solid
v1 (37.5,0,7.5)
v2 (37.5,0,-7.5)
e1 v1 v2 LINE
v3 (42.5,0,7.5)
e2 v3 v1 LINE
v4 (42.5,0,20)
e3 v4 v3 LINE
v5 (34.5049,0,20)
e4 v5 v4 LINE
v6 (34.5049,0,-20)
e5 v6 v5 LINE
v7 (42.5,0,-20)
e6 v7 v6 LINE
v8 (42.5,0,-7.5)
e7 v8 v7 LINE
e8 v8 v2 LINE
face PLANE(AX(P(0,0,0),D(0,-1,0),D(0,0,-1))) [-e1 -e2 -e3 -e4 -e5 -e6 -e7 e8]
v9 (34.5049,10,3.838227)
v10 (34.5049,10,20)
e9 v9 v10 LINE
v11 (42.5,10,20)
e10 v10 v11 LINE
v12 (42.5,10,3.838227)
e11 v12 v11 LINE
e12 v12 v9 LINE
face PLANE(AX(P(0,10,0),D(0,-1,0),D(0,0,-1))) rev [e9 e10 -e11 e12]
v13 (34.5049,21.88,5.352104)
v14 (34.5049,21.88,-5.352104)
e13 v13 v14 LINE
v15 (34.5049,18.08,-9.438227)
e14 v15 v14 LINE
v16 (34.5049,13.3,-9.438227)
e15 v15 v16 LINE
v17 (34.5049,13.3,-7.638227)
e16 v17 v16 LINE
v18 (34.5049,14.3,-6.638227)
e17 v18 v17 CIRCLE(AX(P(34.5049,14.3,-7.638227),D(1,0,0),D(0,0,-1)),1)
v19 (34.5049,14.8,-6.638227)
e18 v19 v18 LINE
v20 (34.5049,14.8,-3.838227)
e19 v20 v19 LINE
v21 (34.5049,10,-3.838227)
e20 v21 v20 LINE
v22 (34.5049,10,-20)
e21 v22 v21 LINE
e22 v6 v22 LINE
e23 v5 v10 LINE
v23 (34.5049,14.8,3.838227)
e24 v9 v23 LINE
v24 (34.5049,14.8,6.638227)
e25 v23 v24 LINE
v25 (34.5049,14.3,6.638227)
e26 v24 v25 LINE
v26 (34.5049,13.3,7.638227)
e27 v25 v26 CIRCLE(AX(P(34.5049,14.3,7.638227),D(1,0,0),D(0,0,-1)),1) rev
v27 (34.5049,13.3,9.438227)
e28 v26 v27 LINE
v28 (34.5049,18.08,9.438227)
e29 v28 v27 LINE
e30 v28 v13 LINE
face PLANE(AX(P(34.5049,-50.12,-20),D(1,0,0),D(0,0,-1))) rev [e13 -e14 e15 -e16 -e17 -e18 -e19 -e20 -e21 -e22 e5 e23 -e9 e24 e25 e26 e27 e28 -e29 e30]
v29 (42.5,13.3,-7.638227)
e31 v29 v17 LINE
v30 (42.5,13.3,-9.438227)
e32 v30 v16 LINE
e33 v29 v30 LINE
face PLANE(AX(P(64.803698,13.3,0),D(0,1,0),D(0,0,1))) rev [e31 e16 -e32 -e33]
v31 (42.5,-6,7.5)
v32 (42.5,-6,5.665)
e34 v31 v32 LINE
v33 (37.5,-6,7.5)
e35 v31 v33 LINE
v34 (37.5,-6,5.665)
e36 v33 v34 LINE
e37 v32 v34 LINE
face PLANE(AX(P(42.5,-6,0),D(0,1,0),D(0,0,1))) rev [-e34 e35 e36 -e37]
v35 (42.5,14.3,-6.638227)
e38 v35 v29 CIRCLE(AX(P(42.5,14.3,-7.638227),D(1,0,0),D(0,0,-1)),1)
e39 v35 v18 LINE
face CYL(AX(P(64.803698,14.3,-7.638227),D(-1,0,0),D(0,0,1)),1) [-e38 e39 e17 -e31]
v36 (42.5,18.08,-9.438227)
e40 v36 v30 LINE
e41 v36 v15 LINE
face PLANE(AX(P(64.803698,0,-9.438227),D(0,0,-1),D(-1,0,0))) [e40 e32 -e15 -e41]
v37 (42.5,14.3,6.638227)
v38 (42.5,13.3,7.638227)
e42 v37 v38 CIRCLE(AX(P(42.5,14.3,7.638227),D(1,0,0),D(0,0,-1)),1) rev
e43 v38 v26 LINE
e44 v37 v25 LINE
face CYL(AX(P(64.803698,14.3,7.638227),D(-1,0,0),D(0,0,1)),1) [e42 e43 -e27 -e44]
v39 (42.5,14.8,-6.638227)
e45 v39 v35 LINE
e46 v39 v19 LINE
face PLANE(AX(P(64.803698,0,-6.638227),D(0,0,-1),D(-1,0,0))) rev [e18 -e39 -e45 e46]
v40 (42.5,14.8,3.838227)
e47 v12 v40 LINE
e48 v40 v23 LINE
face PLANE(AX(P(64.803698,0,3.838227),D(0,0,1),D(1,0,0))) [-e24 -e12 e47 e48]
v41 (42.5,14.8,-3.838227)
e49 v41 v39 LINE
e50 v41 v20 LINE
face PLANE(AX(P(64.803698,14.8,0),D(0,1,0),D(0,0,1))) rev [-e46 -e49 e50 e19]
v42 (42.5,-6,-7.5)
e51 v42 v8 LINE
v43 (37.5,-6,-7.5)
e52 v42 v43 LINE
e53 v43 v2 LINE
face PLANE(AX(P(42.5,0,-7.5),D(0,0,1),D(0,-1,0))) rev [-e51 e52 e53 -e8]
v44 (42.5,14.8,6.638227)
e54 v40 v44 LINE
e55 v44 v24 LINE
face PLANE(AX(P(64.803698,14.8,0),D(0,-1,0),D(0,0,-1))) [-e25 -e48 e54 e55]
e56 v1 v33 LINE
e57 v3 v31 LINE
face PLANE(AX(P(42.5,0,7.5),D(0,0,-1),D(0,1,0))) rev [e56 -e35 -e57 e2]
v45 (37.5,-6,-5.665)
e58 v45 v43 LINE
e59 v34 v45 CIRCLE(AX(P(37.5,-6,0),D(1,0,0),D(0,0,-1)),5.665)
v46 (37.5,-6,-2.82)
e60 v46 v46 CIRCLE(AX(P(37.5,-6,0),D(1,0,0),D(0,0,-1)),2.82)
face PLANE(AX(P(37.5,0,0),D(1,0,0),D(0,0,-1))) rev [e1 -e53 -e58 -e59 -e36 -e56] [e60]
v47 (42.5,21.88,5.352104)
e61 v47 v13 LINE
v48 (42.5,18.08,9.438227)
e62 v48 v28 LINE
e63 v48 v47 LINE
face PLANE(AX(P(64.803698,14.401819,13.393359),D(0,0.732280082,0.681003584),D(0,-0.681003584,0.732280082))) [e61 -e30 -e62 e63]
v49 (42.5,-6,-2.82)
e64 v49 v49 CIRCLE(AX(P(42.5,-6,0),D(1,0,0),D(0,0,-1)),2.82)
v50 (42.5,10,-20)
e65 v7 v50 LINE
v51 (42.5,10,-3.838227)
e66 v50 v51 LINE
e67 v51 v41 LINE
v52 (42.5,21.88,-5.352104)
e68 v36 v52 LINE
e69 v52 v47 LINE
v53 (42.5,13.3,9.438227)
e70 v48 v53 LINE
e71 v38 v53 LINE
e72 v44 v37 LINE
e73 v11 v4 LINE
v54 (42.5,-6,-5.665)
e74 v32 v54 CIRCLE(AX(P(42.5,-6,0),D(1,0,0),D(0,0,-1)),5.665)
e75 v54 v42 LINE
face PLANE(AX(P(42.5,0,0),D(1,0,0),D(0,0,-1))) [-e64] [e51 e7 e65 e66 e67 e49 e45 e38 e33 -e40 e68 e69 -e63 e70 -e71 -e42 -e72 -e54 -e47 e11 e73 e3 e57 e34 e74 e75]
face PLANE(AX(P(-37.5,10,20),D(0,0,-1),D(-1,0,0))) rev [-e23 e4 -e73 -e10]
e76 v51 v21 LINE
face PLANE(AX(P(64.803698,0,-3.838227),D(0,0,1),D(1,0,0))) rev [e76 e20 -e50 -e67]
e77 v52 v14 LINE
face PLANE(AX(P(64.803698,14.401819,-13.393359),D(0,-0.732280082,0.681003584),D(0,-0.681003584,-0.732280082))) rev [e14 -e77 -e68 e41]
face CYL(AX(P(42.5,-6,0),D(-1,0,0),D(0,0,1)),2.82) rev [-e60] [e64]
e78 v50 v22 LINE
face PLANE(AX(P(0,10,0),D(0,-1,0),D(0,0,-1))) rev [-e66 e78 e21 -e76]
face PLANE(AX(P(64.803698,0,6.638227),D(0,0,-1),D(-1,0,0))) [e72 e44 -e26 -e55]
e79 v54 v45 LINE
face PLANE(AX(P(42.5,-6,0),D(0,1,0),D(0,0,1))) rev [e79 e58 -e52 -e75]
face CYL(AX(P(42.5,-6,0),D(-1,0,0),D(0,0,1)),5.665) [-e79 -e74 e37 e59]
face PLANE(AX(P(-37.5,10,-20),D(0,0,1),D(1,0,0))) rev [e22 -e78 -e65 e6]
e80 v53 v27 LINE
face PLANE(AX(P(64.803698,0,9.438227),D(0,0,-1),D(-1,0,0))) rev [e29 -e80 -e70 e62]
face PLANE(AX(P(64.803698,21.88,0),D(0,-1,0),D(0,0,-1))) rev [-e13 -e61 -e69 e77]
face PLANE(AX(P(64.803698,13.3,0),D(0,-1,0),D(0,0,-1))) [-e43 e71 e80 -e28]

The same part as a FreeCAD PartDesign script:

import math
import FreeCAD as App
import Part
import Sketcher
from FreeCAD import Vector

doc = App.newDocument("Part")
params = doc.addObject("Spreadsheet::Sheet", "Params")
for row, (alias, value) in enumerate([
    ("sketch1_width", "75 mm"),
    ("sketch1_height", "40 mm"),
    ("pad1_length", "10 mm"),
    ("sketch2_diameter", "5.64 mm"),
    ("sketch2_width", "6 mm"),
    ("sketch2_width2", "10 mm"),
    ("sketch2_height", "40 mm"),
    ("sketch2_height2", "12.5 mm"),
    ("pad2_length", "5 mm"),
    ("sketch3_radius", "1 mm"),
    ("sketch3_width", "4.8 mm"),
    ("sketch3_width2", "0.5 mm"),
    ("sketch3_height", "2.8 mm"),
    ("sketch3_height2", "1.8 mm"),
    ("pad3_length", "85 mm"),
    ("sketch4_height", "40 mm"),
    ("pocket1_length", "72 mm"),
], start=1):
    params.set(f"A{row}", alias)
    params.set(f"B{row}", "=" + value)
    params.setAlias(f"B{row}", alias)

body = doc.addObject("PartDesign::Body", "Body")

sketch1 = doc.addObject("Sketcher::SketchObject", "Sketch")
body.addObject(sketch1)
sketch1.AttachmentSupport = (doc.XZ_Plane, [""])
sketch1.MapMode = "FlatFace"
sketch1.addGeometry([
    Part.LineSegment(Vector(-38, -20, 0), Vector(-38, 20, 0)),
    Part.LineSegment(Vector(-38, 20, 0), Vector(38, 20, 0)),
    Part.LineSegment(Vector(38, 20, 0), Vector(38, -20, 0)),
    Part.LineSegment(Vector(38, -20, 0), Vector(-38, -20, 0)),
], False)
sketch1.addConstraint([
    Sketcher.Constraint("Coincident", 0, 2, 1, 1),
    Sketcher.Constraint("Coincident", 1, 2, 2, 1),
    Sketcher.Constraint("Coincident", 2, 2, 3, 1),
    Sketcher.Constraint("Coincident", 3, 2, 0, 1),
    Sketcher.Constraint("Vertical", 0),
    Sketcher.Constraint("Horizontal", 1),
    Sketcher.Constraint("Vertical", 2),
    Sketcher.Constraint("Horizontal", 3),
    Sketcher.Constraint("Symmetric", 0, 2, 2, 2, -1, 1),
    Sketcher.Constraint("DistanceX", 1, 1, 1, 2, 75.0),
    Sketcher.Constraint("DistanceY", 0, 1, 0, 2, 40.0),
])
sketch1.setExpression("Constraints[9]", "Params.sketch1_width")
sketch1.setExpression("Constraints[10]", "Params.sketch1_height")
pad1 = doc.addObject("PartDesign::Pad", "Pad")
body.addObject(pad1)
pad1.Profile = sketch1
pad1.setExpression("Length", "Params.pad1_length")
pad1.Reversed = True

sketch2 = doc.addObject("Sketcher::SketchObject", "Sketch001")
body.addObject(sketch2)
sketch2.AttachmentSupport = (doc.YZ_Plane, [""])
sketch2.MapMode = "FlatFace"
sketch2.AttachmentOffset = App.Placement(Vector(0, 0, 37.5), App.Rotation())
sketch2.addGeometry([
    Part.LineSegment(Vector(-6, -7.5, 0), Vector(0, -7.5, 0)),
    Part.LineSegment(Vector(0, -7.5, 0), Vector(0, -20, 0)),
    Part.LineSegment(Vector(0, -20, 0), Vector(10, -20, 0)),
    Part.LineSegment(Vector(10, -20, 0), Vector(10, 20, 0)),
    Part.LineSegment(Vector(10, 20, 0), Vector(0, 20, 0)),
    Part.LineSegment(Vector(0, 20, 0), Vector(0, 7.5, 0)),
    Part.LineSegment(Vector(0, 7.5, 0), Vector(-6, 7.5, 0)),
    Part.LineSegment(Vector(-6, 7.5, 0), Vector(-6, 5.7, 0)),
    Part.ArcOfCircle(Part.Circle(Vector(-6, 0, 0), Vector(0, 0, 1), 5.7), math.radians(90), math.radians(270)),
    Part.LineSegment(Vector(-6, -5.7, 0), Vector(-6, -7.5, 0)),
    Part.Circle(Vector(-6, 0, 0), Vector(0, 0, 1), 2.8),
], False)
sketch2.addConstraint([
    Sketcher.Constraint("Coincident", 0, 2, 1, 1),
    Sketcher.Constraint("Coincident", 1, 2, 2, 1),
    Sketcher.Constraint("Coincident", 2, 2, 3, 1),
    Sketcher.Constraint("Coincident", 3, 2, 4, 1),
    Sketcher.Constraint("Coincident", 4, 2, 5, 1),
    Sketcher.Constraint("Coincident", 5, 2, 6, 1),
    Sketcher.Constraint("Coincident", 6, 2, 7, 1),
    Sketcher.Constraint("Coincident", 7, 2, 8, 1),
    Sketcher.Constraint("Coincident", 8, 2, 9, 1),
    Sketcher.Constraint("Coincident", 9, 2, 0, 1),
    Sketcher.Constraint("Horizontal", 0),
    Sketcher.Constraint("Vertical", 1),
    Sketcher.Constraint("Horizontal", 2),
    Sketcher.Constraint("Vertical", 3),
    Sketcher.Constraint("Horizontal", 4),
    Sketcher.Constraint("Vertical", 5),
    Sketcher.Constraint("Horizontal", 6),
    Sketcher.Constraint("Vertical", 7),
    Sketcher.Constraint("Vertical", 9),
    Sketcher.Constraint("Coincident", 10, 3, 8, 3),
    Sketcher.Constraint("Symmetric", 1, 2, 4, 2, -1, 1),
    Sketcher.Constraint("Symmetric", 0, 2, 5, 2, -1),
    Sketcher.Constraint("Symmetric", 7, 2, 8, 2, -1),
    Sketcher.Constraint("Vertical", 10, 3, 6, 2),
    Sketcher.Constraint("Diameter", 10, 5.64),
    Sketcher.Constraint("DistanceX", 0, 1, 0, 2, 6.0),
    Sketcher.Constraint("DistanceX", 2, 1, 2, 2, 10.0),
    Sketcher.Constraint("DistanceY", 3, 1, 3, 2, 40.0),
    Sketcher.Constraint("DistanceY", 1, 2, 1, 1, 12.5),
    Sketcher.Constraint("Radius", 8, 5.665),
])
sketch2.setExpression("Constraints[24]", "Params.sketch2_diameter")
sketch2.setExpression("Constraints[25]", "Params.sketch2_width")
sketch2.setExpression("Constraints[26]", "Params.sketch2_width2")
sketch2.setExpression("Constraints[27]", "Params.sketch2_height")
sketch2.setExpression("Constraints[28]", "Params.sketch2_height2")
pad2 = doc.addObject("PartDesign::Pad", "Pad001")
body.addObject(pad2)
pad2.Profile = sketch2
pad2.setExpression("Length", "Params.pad2_length")
doc.recompute()

mirrored = doc.addObject("PartDesign::Mirrored", "Mirrored")
body.addObject(mirrored)
mirrored.Originals = [pad2]
mirrored.MirrorPlane = (doc.YZ_Plane, [""])
body.Tip = mirrored

sketch3 = doc.addObject("Sketcher::SketchObject", "Sketch002")
body.addObject(sketch3)
sketch3.AttachmentSupport = (doc.YZ_Plane, [""])
sketch3.MapMode = "FlatFace"
sketch3.AttachmentOffset = App.Placement(Vector(0, 0, -42.5), App.Rotation())
sketch3.addGeometry([
    Part.LineSegment(Vector(14.8, -3.8, 0), Vector(10, -3.8, 0)),
    Part.LineSegment(Vector(10, -3.8, 0), Vector(10, 3.8, 0)),
    Part.LineSegment(Vector(10, 3.8, 0), Vector(14.8, 3.8, 0)),
    Part.LineSegment(Vector(14.8, 3.8, 0), Vector(14.8, 6.6, 0)),
    Part.LineSegment(Vector(14.8, 6.6, 0), Vector(14.3, 6.6, 0)),
    Part.ArcOfCircle(Part.Circle(Vector(14.3, 7.6, 0), Vector(0, 0, 1), 1), math.radians(-180), math.radians(-90)),
    Part.LineSegment(Vector(13.3, 7.6, 0), Vector(13.3, 9.4, 0)),
    Part.LineSegment(Vector(13.3, 9.4, 0), Vector(18.1, 9.4, 0)),
    Part.LineSegment(Vector(18.1, 9.4, 0), Vector(21.9, 5.4, 0)),
    Part.LineSegment(Vector(21.9, 5.4, 0), Vector(21.9, -5.4, 0)),
    Part.LineSegment(Vector(21.9, -5.4, 0), Vector(18.1, -9.4, 0)),
    Part.LineSegment(Vector(18.1, -9.4, 0), Vector(13.3, -9.4, 0)),
    Part.LineSegment(Vector(13.3, -9.4, 0), Vector(13.3, -7.6, 0)),
    Part.ArcOfCircle(Part.Circle(Vector(14.3, -7.6, 0), Vector(0, 0, 1), 1), math.radians(90), math.radians(180)),
    Part.LineSegment(Vector(14.3, -6.6, 0), Vector(14.8, -6.6, 0)),
    Part.LineSegment(Vector(14.8, -6.6, 0), Vector(14.8, -3.8, 0)),
], False)
sketch3.addConstraint([
    Sketcher.Constraint("Coincident", 0, 2, 1, 1),
    Sketcher.Constraint("Coincident", 1, 2, 2, 1),
    Sketcher.Constraint("Coincident", 2, 2, 3, 1),
    Sketcher.Constraint("Coincident", 3, 2, 4, 1),
    Sketcher.Constraint("Tangent", 4, 2, 5, 2),
    Sketcher.Constraint("Tangent", 5, 1, 6, 1),
    Sketcher.Constraint("Coincident", 6, 2, 7, 1),
    Sketcher.Constraint("Coincident", 7, 2, 8, 1),
    Sketcher.Constraint("Coincident", 8, 2, 9, 1),
    Sketcher.Constraint("Coincident", 9, 2, 10, 1),
    Sketcher.Constraint("Coincident", 10, 2, 11, 1),
    Sketcher.Constraint("Coincident", 11, 2, 12, 1),
    Sketcher.Constraint("Tangent", 12, 2, 13, 2),
    Sketcher.Constraint("Tangent", 13, 1, 14, 1),
    Sketcher.Constraint("Coincident", 14, 2, 15, 1),
    Sketcher.Constraint("Coincident", 15, 2, 0, 1),
    Sketcher.Constraint("Horizontal", 0),
    Sketcher.Constraint("Vertical", 1),
    Sketcher.Constraint("Horizontal", 2),
    Sketcher.Constraint("Vertical", 3),
    Sketcher.Constraint("Horizontal", 4),
    Sketcher.Constraint("Vertical", 6),
    Sketcher.Constraint("Horizontal", 7),
    Sketcher.Constraint("Vertical", 9),
    Sketcher.Constraint("Horizontal", 11),
    Sketcher.Constraint("Vertical", 12),
    Sketcher.Constraint("Horizontal", 14),
    Sketcher.Constraint("Vertical", 15),
    Sketcher.Constraint("Equal", 5, 13),
    Sketcher.Constraint("Symmetric", 5, 3, 13, 3, -1),
    Sketcher.Constraint("Symmetric", 7, 2, 10, 2, -1),
    Sketcher.Constraint("Symmetric", 2, 2, 15, 2, -1),
    Sketcher.Constraint("Equal", 8, 10),
    Sketcher.Constraint("Radius", 5, 1.0),
    Sketcher.Constraint("DistanceX", 0, 2, 0, 1, 4.8),
    Sketcher.Constraint("DistanceX", 4, 2, 4, 1, 0.5),
    Sketcher.Constraint("DistanceY", 3, 1, 3, 2, 2.8),
    Sketcher.Constraint("DistanceY", 6, 1, 6, 2, 1.8),
    Sketcher.Constraint("DistanceX", -1, 1, 0, 2, 10.0),
    Sketcher.Constraint("DistanceX", 7, 1, 7, 2, 4.78),
    Sketcher.Constraint("DistanceX", 7, 2, 8, 2, 3.8),
    Sketcher.Constraint("Distance", 8, 5.58),
    Sketcher.Constraint("DistanceY", 9, 2, 9, 1, 10.704209),
])
sketch3.setExpression("Constraints[33]", "Params.sketch3_radius")
sketch3.setExpression("Constraints[34]", "Params.sketch3_width")
sketch3.setExpression("Constraints[35]", "Params.sketch3_width2")
sketch3.setExpression("Constraints[36]", "Params.sketch3_height")
sketch3.setExpression("Constraints[37]", "Params.sketch3_height2")
pad3 = doc.addObject("PartDesign::Pad", "Pad002")
body.addObject(pad3)
pad3.Profile = sketch3
pad3.setExpression("Length", "Params.pad3_length")

sketch4 = doc.addObject("Sketcher::SketchObject", "Sketch003")
body.addObject(sketch4)
sketch4.AttachmentSupport = (doc.XZ_Plane, [""])
sketch4.MapMode = "FlatFace"
sketch4.AttachmentOffset = App.Placement(Vector(0, 0, -21.88), App.Rotation())
sketch4.addGeometry([
    Part.LineSegment(Vector(-43, -20, 0), Vector(-43, 20, 0)),
    Part.LineSegment(Vector(-43, 20, 0), Vector(35, 20, 0)),
    Part.LineSegment(Vector(35, 20, 0), Vector(35, -20, 0)),
    Part.LineSegment(Vector(35, -20, 0), Vector(-43, -20, 0)),
], False)
sketch4.addConstraint([
    Sketcher.Constraint("Coincident", 0, 2, 1, 1),
    Sketcher.Constraint("Coincident", 1, 2, 2, 1),
    Sketcher.Constraint("Coincident", 2, 2, 3, 1),
    Sketcher.Constraint("Coincident", 3, 2, 0, 1),
    Sketcher.Constraint("Vertical", 0),
    Sketcher.Constraint("Horizontal", 1),
    Sketcher.Constraint("Vertical", 2),
    Sketcher.Constraint("Horizontal", 3),
    Sketcher.Constraint("DistanceY", 0, 1, 0, 2, 40.0),
    Sketcher.Constraint("DistanceY", -1, 1, 0, 2, 20.0),
    Sketcher.Constraint("DistanceX", 0, 2, -1, 1, 42.5),
    Sketcher.Constraint("DistanceX", 1, 1, 1, 2, 77.0049),
])
sketch4.setExpression("Constraints[8]", "Params.sketch4_height")
pocket1 = doc.addObject("PartDesign::Pocket", "Pocket")
body.addObject(pocket1)
pocket1.Profile = sketch4
pocket1.setExpression("Length", "Params.pocket1_length")
pocket1.Reversed = True

doc.recompute()
